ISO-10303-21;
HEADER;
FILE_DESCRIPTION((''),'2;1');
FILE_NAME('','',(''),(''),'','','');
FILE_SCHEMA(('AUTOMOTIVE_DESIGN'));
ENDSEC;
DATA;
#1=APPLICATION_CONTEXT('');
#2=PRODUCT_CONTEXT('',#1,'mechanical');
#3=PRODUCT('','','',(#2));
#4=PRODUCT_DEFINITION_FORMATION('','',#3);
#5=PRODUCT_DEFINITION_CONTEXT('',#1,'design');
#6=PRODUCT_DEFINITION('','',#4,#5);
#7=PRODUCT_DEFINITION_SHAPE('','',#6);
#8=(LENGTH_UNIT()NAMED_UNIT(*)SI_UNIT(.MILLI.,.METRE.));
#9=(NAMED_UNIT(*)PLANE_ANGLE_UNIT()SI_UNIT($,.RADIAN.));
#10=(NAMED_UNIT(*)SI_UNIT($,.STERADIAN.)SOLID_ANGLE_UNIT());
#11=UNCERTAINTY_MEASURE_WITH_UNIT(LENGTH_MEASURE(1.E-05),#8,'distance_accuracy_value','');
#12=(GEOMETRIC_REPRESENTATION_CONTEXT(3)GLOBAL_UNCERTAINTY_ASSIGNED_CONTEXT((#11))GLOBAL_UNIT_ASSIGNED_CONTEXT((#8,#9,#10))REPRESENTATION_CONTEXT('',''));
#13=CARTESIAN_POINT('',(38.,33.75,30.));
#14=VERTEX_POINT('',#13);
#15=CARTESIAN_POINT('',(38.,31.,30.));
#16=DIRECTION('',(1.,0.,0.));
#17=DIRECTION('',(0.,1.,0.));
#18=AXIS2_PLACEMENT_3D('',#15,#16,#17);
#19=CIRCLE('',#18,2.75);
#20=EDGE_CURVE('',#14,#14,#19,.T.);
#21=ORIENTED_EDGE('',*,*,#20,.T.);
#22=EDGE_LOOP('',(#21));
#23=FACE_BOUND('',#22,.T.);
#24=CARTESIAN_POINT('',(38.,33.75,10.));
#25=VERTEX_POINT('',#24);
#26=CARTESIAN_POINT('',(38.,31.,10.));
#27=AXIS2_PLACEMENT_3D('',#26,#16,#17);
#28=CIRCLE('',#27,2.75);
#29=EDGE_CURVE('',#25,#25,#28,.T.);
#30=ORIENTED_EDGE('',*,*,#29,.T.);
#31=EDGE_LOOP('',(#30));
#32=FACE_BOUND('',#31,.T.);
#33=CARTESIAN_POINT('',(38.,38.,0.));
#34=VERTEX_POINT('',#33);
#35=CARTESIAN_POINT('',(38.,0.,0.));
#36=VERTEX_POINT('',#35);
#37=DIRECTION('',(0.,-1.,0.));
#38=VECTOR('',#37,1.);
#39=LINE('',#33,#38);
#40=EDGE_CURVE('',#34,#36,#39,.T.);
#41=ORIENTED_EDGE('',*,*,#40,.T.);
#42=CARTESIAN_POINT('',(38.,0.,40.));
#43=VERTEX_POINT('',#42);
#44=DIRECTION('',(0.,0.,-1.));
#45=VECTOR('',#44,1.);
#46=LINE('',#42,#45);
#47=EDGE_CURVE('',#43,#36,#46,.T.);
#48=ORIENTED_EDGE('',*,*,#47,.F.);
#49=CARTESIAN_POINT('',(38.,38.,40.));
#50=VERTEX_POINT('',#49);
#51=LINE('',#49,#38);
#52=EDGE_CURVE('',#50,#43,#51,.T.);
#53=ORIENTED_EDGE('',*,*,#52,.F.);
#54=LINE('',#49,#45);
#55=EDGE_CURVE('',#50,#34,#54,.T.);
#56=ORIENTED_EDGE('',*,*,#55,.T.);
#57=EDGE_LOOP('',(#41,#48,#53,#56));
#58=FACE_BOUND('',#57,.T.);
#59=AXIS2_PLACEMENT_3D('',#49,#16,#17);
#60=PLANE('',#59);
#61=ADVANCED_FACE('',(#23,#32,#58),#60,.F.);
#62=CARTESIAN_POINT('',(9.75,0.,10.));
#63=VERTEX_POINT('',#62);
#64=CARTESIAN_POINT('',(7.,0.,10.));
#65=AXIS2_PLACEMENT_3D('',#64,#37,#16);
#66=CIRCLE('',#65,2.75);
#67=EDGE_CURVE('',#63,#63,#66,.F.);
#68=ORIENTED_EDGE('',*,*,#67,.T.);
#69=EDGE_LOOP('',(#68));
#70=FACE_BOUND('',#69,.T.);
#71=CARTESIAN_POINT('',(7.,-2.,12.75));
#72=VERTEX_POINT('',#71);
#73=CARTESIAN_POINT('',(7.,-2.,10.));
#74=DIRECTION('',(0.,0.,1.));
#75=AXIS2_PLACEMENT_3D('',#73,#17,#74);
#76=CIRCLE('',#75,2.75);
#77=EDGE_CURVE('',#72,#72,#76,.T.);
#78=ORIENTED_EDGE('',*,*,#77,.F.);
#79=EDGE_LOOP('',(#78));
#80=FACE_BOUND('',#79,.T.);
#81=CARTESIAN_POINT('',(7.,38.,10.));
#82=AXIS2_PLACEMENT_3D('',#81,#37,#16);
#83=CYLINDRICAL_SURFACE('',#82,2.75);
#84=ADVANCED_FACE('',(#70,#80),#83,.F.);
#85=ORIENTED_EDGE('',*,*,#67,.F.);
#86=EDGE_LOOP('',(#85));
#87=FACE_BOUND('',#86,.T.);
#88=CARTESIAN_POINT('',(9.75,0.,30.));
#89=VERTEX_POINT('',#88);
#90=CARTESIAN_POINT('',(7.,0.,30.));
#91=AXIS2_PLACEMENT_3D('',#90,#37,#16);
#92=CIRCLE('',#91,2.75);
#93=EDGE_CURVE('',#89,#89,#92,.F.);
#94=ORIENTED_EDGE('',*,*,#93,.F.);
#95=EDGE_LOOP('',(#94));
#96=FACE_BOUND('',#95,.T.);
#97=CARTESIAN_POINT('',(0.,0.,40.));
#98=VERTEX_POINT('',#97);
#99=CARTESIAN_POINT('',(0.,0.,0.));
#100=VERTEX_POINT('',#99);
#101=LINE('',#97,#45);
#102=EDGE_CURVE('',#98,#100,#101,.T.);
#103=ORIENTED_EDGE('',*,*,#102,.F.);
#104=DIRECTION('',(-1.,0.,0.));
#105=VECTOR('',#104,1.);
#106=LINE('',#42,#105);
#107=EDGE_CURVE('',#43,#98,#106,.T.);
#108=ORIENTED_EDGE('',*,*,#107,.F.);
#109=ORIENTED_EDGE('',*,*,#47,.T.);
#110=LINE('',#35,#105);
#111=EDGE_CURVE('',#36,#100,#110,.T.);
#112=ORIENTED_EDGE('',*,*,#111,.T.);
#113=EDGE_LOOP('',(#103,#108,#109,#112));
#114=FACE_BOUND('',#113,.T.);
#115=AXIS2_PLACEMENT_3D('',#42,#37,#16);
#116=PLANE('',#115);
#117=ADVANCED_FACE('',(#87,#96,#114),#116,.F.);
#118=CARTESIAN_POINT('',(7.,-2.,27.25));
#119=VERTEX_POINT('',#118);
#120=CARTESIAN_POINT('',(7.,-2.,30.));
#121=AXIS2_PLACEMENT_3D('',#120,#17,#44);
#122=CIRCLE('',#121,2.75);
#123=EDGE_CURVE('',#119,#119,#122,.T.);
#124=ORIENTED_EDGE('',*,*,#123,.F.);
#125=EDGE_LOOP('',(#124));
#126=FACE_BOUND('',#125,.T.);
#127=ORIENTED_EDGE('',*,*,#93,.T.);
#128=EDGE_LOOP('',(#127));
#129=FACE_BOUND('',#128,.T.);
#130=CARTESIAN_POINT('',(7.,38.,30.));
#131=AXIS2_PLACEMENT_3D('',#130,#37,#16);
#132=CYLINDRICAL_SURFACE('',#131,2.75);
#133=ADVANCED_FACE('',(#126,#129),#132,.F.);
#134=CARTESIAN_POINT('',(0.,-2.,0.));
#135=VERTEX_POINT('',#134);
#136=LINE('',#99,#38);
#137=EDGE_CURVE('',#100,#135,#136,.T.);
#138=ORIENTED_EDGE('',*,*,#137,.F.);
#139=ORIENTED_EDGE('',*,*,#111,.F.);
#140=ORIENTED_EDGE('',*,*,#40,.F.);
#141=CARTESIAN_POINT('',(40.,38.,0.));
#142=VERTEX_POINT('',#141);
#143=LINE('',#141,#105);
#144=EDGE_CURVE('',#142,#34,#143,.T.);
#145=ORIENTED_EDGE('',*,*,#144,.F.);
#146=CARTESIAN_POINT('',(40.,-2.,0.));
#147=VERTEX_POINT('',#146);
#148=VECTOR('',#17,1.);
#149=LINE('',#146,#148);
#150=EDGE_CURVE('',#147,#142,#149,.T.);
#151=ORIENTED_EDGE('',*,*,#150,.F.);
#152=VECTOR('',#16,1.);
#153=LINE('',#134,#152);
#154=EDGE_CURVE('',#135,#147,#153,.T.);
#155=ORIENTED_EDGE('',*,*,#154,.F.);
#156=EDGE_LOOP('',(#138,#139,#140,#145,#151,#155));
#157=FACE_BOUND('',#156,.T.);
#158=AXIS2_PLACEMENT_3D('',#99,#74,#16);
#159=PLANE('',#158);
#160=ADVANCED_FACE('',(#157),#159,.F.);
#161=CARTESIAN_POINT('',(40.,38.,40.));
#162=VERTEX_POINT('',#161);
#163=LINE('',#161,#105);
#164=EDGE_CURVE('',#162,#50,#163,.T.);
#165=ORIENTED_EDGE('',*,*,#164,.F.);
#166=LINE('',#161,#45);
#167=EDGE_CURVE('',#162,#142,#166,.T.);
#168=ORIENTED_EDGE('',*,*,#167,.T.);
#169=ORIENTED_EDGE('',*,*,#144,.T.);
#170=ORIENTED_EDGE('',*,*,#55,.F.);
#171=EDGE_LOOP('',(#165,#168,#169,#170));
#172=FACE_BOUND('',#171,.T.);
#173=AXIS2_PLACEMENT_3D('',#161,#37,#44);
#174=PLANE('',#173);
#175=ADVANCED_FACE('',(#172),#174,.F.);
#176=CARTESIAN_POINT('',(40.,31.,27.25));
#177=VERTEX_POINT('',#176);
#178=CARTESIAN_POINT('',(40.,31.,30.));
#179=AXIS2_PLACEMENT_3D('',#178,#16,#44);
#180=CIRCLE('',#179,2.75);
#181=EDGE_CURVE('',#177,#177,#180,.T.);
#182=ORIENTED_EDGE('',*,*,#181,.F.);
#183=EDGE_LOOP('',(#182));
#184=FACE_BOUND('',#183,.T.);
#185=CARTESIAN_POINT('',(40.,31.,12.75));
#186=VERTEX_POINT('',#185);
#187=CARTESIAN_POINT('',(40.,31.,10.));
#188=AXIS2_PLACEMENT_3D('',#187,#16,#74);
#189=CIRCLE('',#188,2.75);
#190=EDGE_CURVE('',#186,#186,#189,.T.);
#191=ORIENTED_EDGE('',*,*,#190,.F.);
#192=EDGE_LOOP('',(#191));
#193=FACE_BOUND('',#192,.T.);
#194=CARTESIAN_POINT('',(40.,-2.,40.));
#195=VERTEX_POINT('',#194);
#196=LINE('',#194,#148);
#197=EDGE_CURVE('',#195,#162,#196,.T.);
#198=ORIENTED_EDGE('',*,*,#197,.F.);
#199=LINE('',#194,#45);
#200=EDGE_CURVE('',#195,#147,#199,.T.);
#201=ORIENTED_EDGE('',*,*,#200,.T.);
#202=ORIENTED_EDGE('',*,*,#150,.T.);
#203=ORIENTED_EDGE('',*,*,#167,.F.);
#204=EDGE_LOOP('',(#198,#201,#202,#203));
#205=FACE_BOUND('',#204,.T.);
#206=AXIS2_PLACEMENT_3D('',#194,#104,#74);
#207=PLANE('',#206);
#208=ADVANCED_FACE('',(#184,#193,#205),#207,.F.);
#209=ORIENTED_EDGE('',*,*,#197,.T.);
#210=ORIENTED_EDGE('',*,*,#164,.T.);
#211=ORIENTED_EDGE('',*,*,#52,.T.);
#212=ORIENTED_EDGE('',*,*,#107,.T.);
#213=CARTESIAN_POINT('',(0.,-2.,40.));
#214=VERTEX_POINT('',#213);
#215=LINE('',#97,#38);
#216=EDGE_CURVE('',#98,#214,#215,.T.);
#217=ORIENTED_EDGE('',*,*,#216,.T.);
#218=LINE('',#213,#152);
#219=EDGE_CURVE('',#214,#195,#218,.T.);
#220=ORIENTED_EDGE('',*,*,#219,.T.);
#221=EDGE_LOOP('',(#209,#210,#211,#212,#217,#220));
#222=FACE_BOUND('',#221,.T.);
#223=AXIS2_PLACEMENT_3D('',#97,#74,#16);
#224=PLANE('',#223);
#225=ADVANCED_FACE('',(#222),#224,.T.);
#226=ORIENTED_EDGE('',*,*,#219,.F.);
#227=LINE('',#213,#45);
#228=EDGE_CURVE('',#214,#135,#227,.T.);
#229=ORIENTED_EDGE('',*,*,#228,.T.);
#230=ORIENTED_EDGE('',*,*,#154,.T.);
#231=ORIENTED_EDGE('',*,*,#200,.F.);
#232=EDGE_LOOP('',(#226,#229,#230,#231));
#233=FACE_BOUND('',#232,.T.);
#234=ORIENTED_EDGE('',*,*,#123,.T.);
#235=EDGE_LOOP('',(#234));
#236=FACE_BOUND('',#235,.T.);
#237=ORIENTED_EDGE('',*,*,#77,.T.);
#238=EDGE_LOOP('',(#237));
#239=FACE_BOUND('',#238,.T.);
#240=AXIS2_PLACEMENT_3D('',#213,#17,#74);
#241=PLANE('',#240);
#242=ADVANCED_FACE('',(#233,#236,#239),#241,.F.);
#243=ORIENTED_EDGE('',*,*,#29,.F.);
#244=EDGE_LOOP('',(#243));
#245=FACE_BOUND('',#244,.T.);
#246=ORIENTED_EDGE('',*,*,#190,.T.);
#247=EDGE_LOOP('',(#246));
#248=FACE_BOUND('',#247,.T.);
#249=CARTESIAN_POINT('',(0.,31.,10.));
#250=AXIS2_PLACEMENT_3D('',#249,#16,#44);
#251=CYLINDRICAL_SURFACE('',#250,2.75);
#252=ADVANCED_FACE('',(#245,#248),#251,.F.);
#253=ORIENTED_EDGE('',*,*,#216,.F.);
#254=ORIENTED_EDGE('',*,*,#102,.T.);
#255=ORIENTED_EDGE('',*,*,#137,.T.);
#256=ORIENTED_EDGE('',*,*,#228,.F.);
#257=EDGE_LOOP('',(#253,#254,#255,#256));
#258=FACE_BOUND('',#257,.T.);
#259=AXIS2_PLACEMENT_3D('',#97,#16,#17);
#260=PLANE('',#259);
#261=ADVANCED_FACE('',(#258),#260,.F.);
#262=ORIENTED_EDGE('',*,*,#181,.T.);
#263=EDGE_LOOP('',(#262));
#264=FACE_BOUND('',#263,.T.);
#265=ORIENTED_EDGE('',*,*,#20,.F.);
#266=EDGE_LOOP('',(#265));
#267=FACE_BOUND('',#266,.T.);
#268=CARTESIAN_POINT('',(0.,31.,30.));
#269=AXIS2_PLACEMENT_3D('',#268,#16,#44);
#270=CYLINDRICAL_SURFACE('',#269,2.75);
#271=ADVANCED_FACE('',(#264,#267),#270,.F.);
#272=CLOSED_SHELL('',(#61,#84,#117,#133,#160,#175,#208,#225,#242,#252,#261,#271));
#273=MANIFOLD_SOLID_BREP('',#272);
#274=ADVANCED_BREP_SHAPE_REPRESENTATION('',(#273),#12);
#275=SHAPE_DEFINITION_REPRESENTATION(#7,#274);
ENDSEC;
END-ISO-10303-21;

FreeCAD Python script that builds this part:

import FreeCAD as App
import Part
import Sketcher
Q = App.Units.Quantity


def add_polygon(sketch, points):
    """Adds a closed chain of lines whose ends are joined by coincident constraints."""
    first, n = sketch.GeometryCount, len(points)
    for a, b in zip(points, points[1:] + points[:1]):
        sketch.addGeometry(Part.LineSegment(App.Vector(*a, 0), App.Vector(*b, 0)), False)
    for i in range(n):
        sketch.addConstraint(Sketcher.Constraint("Coincident", first + i, 2, first + (i + 1) % n, 1))

doc = App.newDocument("Part")
body = doc.addObject("PartDesign::Body", "Body")

# Sketch on XY plane
sketch1 = body.newObject("Sketcher::SketchObject", "Sketch")
sketch1.AttachmentSupport = (doc.getObject("XY_Plane"), [""])
sketch1.MapMode = "FlatFace"
add_polygon(sketch1, [(0, 0), (0, -2), (40, -2), (40, 38), (38, 38), (38, 0)])  # lines 0-5
sketch1.addConstraint(Sketcher.Constraint("Vertical", 0))
sketch1.addConstraint(Sketcher.Constraint("Horizontal", 1))
sketch1.addConstraint(Sketcher.Constraint("Vertical", 2))
sketch1.addConstraint(Sketcher.Constraint("Horizontal", 3))
sketch1.addConstraint(Sketcher.Constraint("Vertical", 4))
sketch1.addConstraint(Sketcher.Constraint("Horizontal", 5))
sketch1.addConstraint(Sketcher.Constraint("Coincident", 5, 2, -1, 1))
sketch1.addConstraint(Sketcher.Constraint("Equal", 3, 0))
sketch1.addConstraint(Sketcher.Constraint("Equal", 1, 2))
sketch1.addConstraint(Sketcher.Constraint("DistanceX", 1, 1, 1, 2, Q("40 mm")))
sketch1.addConstraint(Sketcher.Constraint("DistanceX", 3, 2, 3, 1, Q("2 mm")))
pad1 = body.newObject("PartDesign::Pad", "Pad")
pad1.Profile = sketch1
pad1.Length = 40

# Sketch on YZ plane
sketch2 = body.newObject("Sketcher::SketchObject", "Sketch001")
sketch2.AttachmentSupport = (doc.getObject("YZ_Plane"), [""])
sketch2.MapMode = "FlatFace"
sketch2.AttachmentOffset = App.Placement(App.Vector(0, 0, 40), App.Rotation())
sketch2.addGeometry(Part.Circle(App.Vector(31, 30, 0), App.Vector(0, 0, 1), 2.8), False)
sketch2.addGeometry(Part.Circle(App.Vector(31, 10, 0), App.Vector(0, 0, 1), 2.8), False)
sketch2.addConstraint(Sketcher.Constraint("Equal", 0, 1))
sketch2.addConstraint(Sketcher.Constraint("Vertical", 0, 3, 1, 3))
sketch2.addConstraint(Sketcher.Constraint("Diameter", 0, Q("5.5 mm")))
sketch2.addConstraint(Sketcher.Constraint("DistanceX", -1, 1, 0, 3, Q("31 mm")))
sketch2.addConstraint(Sketcher.Constraint("DistanceY", -1, 1, 0, 3, Q("30 mm")))
sketch2.addConstraint(Sketcher.Constraint("DistanceY", -1, 1, 1, 3, Q("10 mm")))
pocket1 = body.newObject("PartDesign::Pocket", "Pocket")
pocket1.Profile = sketch2
pocket1.Length = 40
doc.recompute()

datumplane = body.newObject("PartDesign::Plane", "DatumPlane")
datumplane.Placement = App.Placement(App.Vector(19, 19, 0), App.Rotation(App.Vector(0.707106781, -0.707106781, 0), App.Vector(0, 0, -1), App.Vector(0.707106781, 0.707106781, 0), "ZXY"))
mirrored = body.newObject("PartDesign::Mirrored", "Mirrored")
mirrored.Originals = [pocket1]
mirrored.MirrorPlane = (datumplane, [""])
body.Tip = mirrored

doc.recompute()
